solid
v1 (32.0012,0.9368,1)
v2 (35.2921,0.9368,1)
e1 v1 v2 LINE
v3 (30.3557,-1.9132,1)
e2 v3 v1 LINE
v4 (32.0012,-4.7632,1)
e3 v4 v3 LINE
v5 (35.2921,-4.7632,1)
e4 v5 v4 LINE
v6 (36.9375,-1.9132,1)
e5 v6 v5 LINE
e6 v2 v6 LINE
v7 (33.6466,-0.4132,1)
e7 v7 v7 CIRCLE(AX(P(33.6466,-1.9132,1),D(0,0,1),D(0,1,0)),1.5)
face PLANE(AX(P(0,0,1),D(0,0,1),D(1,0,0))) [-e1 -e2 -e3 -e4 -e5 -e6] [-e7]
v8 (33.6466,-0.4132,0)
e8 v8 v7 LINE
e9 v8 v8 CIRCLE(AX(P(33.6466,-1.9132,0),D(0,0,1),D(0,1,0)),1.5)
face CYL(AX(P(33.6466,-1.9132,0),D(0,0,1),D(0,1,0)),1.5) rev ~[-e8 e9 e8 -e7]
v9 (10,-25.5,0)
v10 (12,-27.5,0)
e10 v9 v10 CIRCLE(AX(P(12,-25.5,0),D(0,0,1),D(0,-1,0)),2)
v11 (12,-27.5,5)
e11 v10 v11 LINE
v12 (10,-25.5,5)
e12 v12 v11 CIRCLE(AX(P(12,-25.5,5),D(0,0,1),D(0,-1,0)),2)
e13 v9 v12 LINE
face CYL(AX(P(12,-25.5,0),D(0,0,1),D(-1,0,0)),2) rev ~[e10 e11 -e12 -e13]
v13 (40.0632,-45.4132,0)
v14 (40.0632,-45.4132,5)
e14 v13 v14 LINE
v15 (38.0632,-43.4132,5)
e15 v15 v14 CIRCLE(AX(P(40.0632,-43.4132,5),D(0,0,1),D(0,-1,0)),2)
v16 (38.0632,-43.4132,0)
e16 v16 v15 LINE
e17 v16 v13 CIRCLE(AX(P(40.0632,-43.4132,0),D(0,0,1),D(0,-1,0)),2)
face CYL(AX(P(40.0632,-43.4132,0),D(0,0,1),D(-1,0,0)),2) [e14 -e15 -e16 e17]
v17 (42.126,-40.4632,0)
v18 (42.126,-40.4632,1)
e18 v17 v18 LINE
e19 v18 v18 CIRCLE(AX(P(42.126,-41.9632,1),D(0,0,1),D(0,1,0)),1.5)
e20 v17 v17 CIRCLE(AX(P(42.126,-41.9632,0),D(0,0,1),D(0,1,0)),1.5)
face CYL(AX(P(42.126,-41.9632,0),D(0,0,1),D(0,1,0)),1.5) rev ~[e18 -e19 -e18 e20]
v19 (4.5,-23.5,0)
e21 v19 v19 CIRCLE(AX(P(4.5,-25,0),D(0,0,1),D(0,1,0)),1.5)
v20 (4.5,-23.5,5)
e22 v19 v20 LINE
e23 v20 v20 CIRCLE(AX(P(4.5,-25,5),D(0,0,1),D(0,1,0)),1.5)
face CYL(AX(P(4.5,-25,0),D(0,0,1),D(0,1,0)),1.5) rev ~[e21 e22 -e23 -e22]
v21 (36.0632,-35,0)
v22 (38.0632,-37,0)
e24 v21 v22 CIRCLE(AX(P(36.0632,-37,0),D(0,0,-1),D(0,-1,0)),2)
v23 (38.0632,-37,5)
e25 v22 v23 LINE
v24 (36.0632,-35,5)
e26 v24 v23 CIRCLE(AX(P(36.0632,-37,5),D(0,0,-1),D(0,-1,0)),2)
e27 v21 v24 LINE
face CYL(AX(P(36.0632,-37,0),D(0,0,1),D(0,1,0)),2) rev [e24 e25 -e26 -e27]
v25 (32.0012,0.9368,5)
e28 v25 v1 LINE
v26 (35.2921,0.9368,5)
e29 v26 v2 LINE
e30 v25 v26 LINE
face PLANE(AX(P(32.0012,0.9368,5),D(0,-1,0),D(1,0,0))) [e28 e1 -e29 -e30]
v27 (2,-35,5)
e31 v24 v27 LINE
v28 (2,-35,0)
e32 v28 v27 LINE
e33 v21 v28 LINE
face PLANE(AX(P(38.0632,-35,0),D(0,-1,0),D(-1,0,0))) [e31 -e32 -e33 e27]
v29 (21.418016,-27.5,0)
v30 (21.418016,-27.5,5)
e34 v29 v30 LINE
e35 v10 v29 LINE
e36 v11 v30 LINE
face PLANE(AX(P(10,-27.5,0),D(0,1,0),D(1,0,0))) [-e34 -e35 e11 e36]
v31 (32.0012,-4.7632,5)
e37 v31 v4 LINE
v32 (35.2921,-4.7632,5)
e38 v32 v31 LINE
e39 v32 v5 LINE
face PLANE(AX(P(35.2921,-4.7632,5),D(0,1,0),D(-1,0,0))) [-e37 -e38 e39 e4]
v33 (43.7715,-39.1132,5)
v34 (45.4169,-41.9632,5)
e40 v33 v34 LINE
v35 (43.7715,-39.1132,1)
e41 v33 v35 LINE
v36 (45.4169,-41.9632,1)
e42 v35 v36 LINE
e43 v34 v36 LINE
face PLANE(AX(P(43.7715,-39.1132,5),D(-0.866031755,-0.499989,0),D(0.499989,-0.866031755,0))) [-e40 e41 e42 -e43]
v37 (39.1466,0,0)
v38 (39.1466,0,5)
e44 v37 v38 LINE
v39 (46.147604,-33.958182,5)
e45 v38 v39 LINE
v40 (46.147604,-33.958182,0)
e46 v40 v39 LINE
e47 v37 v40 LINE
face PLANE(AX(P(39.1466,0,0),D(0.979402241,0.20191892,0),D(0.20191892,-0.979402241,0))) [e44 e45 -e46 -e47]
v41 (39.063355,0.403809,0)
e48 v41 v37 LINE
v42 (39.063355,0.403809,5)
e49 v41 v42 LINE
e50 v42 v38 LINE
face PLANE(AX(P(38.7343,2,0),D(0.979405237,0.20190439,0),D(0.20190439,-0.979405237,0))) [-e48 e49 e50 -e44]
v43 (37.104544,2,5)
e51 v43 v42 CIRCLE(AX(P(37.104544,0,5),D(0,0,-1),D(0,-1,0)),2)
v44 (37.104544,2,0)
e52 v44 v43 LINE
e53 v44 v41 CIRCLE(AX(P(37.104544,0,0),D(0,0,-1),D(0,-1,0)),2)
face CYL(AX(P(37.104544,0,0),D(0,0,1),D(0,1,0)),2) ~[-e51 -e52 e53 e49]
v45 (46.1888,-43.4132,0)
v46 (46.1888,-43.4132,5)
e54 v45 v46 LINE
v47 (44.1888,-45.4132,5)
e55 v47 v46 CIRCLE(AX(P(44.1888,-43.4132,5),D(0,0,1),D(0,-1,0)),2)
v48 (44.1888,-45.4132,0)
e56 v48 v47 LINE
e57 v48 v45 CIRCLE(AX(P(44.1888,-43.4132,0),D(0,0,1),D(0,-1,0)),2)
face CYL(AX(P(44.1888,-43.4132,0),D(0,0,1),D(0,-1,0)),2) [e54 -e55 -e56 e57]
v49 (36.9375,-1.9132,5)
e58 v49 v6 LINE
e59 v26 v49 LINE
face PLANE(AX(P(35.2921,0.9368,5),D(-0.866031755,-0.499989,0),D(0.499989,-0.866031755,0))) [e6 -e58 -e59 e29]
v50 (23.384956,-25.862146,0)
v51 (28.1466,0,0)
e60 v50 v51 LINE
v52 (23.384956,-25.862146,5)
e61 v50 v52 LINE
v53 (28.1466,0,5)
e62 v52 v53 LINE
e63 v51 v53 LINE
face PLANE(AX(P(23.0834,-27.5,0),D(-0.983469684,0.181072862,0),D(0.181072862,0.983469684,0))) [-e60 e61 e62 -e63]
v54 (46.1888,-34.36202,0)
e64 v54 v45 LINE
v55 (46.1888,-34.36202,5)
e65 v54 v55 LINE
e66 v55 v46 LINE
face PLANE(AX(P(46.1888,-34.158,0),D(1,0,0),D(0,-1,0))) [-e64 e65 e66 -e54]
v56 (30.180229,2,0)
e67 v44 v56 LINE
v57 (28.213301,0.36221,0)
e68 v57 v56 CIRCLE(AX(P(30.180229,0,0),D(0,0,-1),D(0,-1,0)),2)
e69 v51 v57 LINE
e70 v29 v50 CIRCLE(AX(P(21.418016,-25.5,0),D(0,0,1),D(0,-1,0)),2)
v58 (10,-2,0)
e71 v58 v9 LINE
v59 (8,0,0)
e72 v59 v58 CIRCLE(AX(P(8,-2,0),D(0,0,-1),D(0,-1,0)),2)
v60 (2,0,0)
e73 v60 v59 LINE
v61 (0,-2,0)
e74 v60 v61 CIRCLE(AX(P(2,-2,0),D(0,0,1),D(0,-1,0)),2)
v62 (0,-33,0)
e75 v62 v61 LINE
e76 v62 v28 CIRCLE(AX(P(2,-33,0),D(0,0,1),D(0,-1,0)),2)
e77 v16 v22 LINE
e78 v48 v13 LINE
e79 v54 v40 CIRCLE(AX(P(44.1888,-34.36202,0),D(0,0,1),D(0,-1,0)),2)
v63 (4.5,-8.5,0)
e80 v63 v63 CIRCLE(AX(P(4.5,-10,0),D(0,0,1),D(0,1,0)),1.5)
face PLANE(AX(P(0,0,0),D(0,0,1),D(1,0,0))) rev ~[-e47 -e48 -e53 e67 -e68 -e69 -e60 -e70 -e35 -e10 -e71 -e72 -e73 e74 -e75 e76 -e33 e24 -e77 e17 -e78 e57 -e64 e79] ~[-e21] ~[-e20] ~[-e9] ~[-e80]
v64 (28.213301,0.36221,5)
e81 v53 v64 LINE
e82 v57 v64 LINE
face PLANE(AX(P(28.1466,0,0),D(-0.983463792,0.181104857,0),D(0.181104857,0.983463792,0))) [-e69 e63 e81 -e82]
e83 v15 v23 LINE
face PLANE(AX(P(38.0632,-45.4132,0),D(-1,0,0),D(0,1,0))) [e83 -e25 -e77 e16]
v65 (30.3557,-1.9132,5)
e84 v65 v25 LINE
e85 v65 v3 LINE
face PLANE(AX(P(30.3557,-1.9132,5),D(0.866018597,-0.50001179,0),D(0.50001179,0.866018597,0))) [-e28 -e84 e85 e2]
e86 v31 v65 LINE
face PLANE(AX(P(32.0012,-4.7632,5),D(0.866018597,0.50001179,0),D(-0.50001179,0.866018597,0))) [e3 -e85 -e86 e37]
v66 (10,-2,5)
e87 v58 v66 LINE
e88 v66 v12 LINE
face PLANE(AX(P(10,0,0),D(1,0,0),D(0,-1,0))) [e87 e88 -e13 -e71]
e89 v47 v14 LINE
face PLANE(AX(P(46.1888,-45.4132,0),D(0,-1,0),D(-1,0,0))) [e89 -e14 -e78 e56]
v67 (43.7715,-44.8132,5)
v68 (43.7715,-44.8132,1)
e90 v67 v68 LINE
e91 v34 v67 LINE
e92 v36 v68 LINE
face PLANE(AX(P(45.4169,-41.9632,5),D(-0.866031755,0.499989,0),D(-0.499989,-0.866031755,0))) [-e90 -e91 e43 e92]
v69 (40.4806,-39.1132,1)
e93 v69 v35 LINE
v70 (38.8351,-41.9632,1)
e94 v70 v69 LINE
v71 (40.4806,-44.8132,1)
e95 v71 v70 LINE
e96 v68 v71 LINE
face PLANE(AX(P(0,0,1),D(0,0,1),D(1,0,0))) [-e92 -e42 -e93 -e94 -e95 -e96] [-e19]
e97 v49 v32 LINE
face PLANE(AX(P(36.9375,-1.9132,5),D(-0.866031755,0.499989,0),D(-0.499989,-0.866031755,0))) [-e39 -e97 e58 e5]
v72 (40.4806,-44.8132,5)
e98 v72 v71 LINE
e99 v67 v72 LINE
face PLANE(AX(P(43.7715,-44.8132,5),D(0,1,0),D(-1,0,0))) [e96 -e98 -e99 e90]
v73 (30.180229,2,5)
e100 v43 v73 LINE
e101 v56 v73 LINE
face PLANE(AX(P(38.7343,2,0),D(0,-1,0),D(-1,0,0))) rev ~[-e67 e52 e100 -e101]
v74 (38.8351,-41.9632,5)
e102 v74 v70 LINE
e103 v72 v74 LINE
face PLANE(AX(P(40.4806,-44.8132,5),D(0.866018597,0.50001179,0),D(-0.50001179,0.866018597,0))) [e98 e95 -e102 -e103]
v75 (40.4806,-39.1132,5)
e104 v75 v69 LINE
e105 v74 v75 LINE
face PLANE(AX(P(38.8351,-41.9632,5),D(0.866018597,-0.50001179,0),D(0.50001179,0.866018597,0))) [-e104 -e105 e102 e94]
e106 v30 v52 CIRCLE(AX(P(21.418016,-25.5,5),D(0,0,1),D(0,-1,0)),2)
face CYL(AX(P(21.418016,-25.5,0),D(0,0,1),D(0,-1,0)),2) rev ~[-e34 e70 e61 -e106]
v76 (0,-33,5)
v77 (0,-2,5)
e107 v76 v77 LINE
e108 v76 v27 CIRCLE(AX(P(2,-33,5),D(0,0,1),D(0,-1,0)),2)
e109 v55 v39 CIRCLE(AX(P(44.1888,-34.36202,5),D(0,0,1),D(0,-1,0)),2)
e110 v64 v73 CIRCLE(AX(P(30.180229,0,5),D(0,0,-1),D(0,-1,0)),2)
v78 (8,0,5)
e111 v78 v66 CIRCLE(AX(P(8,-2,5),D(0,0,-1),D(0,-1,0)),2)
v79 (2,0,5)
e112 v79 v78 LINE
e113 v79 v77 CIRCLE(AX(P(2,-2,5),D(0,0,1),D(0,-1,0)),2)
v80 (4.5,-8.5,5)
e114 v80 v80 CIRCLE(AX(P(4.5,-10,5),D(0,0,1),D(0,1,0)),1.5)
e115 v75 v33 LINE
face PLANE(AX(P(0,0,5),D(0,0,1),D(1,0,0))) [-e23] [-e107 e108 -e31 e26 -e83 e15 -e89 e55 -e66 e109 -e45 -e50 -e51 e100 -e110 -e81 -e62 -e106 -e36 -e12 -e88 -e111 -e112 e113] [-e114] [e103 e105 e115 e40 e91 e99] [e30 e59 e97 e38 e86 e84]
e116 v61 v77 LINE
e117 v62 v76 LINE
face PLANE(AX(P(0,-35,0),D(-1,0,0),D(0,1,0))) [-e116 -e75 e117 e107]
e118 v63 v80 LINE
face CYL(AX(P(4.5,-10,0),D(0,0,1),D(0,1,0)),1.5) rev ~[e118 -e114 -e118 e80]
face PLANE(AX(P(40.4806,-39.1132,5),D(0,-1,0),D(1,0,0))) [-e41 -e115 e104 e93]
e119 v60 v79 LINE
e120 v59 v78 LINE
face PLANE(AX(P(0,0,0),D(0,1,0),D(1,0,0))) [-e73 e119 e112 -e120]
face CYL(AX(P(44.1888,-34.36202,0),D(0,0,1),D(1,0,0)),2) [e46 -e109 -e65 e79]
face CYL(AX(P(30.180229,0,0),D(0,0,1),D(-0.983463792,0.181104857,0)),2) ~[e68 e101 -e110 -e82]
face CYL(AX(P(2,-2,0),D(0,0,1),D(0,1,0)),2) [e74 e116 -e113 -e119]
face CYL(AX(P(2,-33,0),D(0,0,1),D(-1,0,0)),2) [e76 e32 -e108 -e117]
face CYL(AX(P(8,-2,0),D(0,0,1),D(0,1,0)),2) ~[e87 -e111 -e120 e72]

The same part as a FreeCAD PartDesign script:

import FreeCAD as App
import Part
import Sketcher
from FreeCAD import Vector
Q = App.Units.Quantity


def edges_at(feature, points):
    """Names of the edges that pass closest to the given points."""
    edges = feature.Shape.Edges
    near = lambda p: min(range(len(edges)), key=lambda i: edges[i].distToShape(Part.Vertex(*p))[0])
    return sorted({f"Edge{near(p) + 1}" for p in points})


def add_polygon(sketch, points):
    """Adds a closed chain of lines whose ends are joined by coincident constraints."""
    first, n = sketch.GeometryCount, len(points)
    for a, b in zip(points, points[1:] + points[:1]):
        sketch.addGeometry(Part.LineSegment(App.Vector(*a, 0), App.Vector(*b, 0)), False)
    for i in range(n):
        sketch.addConstraint(Sketcher.Constraint("Coincident", first + i, 2, first + (i + 1) % n, 1))

doc = App.newDocument("Part")
body = doc.addObject("PartDesign::Body", "Body")

# Sketch on XY plane
sketch1 = body.newObject("Sketcher::SketchObject", "Sketch")
sketch1.AttachmentSupport = (doc.getObject("XY_Plane"), [""])
sketch1.MapMode = "FlatFace"
add_polygon(sketch1, [(10, 0), (0, 0), (0, -35), (38.0632, -35), (38.0632, -45.4132), (46.1888, -45.4132), (46.1888, -34.158), (39.1466, 0), (38.7343, 2), (28.5149, 2), (28.1466, 0), (23.0834, -27.5), (10, -27.5)])  # lines 0-12
sketch1.addConstraint([
    Sketcher.Constraint("Horizontal", 0),
    Sketcher.Constraint("Vertical", 1),
    Sketcher.Constraint("Horizontal", 2),
    Sketcher.Constraint("Vertical", 3),
    Sketcher.Constraint("Horizontal", 4),
    Sketcher.Constraint("Vertical", 5),
    Sketcher.Constraint("Horizontal", 8),
    Sketcher.Constraint("Horizontal", 11),
    Sketcher.Constraint("Vertical", 12),
    Sketcher.Constraint("Coincident", 0, 2, -1, 1),
    Sketcher.Constraint("PointOnObject", 6, 2, -1),
    Sketcher.Constraint("PointOnObject", 9, 2, -1),
    Sketcher.Constraint("DistanceX", 0, 2, 0, 1, Q("10 mm")),
    Sketcher.Constraint("DistanceY", 1, 2, 1, 1, Q("35 mm")),
    Sketcher.Constraint("DistanceY", -1, 1, 7, 2, Q("2 mm")),
    Sketcher.Constraint("DistanceY", 2, 2, 10, 2, Q("7.5 mm")),
    Sketcher.Constraint("DistanceX", 2, 1, 2, 2, Q("38.0632 mm")),
    Sketcher.Constraint("DistanceX", 4, 1, 4, 2, Q("8.1256 mm")),
    Sketcher.Constraint("DistanceY", 3, 2, 3, 1, Q("10.4132 mm")),
    Sketcher.Constraint("DistanceX", 9, 2, 6, 2, Q("11 mm")),
    Sketcher.Constraint("Distance", 7, Q("2.042 mm")),
    Sketcher.Constraint("DistanceX", 8, 2, 8, 1, Q("10.2194 mm")),
    Sketcher.Constraint("DistanceX", 11, 2, 11, 1, Q("13.0834 mm")),
    Sketcher.Constraint("DistanceY", 5, 1, 5, 2, Q("11.2552 mm")),
    Sketcher.Constraint("DistanceX", -1, 1, 8, 2, Q("28.515 mm")),
])
pad1 = body.newObject("PartDesign::Pad", "Pad")
pad1.Profile = sketch1
pad1.Length = 5

# Sketch on XY plane
sketch2 = body.newObject("Sketcher::SketchObject", "Sketch001")
sketch2.AttachmentSupport = (doc.getObject("XY_Plane"), [""])
sketch2.MapMode = "FlatFace"
sketch2.addGeometry([
    Part.Circle(Vector(4.5, -10, 0), Vector(0, 0, 1), 1.5),
    Part.Circle(Vector(4.5, -25, 0), Vector(0, 0, 1), 1.5),
    Part.Circle(Vector(42.1, -42, 0), Vector(0, 0, 1), 1.5),
    Part.Circle(Vector(33.6, -1.9, 0), Vector(0, 0, 1), 1.5),
], False)
sketch2.addConstraint([
    Sketcher.Constraint("Equal", 0, 1),
    Sketcher.Constraint("Equal", 1, 2),
    Sketcher.Constraint("Equal", 2, 3),
    Sketcher.Constraint("Vertical", 0, 3, 1, 3),
    Sketcher.Constraint("Diameter", 0, Q("3 mm")),
    Sketcher.Constraint("DistanceY", 0, 3, -1, 1, Q("10 mm")),
    Sketcher.Constraint("DistanceY", 1, 3, -1, 1, Q("25 mm")),
    Sketcher.Constraint("DistanceX", -1, 1, 0, 3, Q("4.5 mm")),
    Sketcher.Constraint("DistanceY", 2, 3, 3, 3, Q("40.05 mm")),
    Sketcher.Constraint("DistanceX", -1, 1, 2, 3, Q("42.126 mm")),
    Sketcher.Constraint("DistanceY", 2, 3, -1, 1, Q("41.9632 mm")),
    Sketcher.Constraint("DistanceX", -1, 1, 3, 3, Q("33.6466 mm")),
])
doc.recompute()
hole = body.newObject("PartDesign::Hole", "Hole")
hole.Profile = sketch2
hole.ThreadType = "None"
hole.Diameter = 3
hole.DepthType = "Dimension"
hole.Depth = 20
hole.DrillPoint = "Flat"
hole.Reversed = True

# Sketch on XY plane
sketch3 = body.newObject("Sketcher::SketchObject", "Sketch002")
sketch3.AttachmentSupport = (doc.getObject("XY_Plane"), [""])
sketch3.MapMode = "FlatFace"
sketch3.AttachmentOffset = App.Placement(Vector(0, 0, 5), App.Rotation())
add_polygon(sketch3, [(36.9, -1.9), (35.3, 0.9), (32, 0.9), (30.4, -1.9), (32, -4.8), (35.3, -4.8)])  # lines 0-5
sketch3.addGeometry(Part.Circle(Vector(33.6, -1.9, 0), Vector(0, 0, 1), 1.5), False)  # 6
add_polygon(sketch3, [(45.4, -42), (43.8, -39.1), (40.5, -39.1), (38.8, -42), (40.5, -44.8), (43.8, -44.8)])  # lines 7-12
sketch3.addGeometry(Part.Circle(Vector(42.1, -42, 0), Vector(0, 0, 1), 1.5), False)  # 13
sketch3.addConstraint([
    Sketcher.Constraint("Horizontal", 1),
    Sketcher.Constraint("Horizontal", 4),
    Sketcher.Constraint("Horizontal", 8),
    Sketcher.Constraint("Horizontal", 11),
    Sketcher.Constraint("Equal", 6, 13),
    Sketcher.Constraint("Parallel", 0, 3),
    Sketcher.Constraint("Parallel", 2, 5),
    Sketcher.Constraint("Parallel", 3, 7),
    Sketcher.Constraint("Parallel", 5, 9),
    Sketcher.Constraint("Parallel", 7, 10),
    Sketcher.Constraint("Parallel", 9, 12),
    Sketcher.Constraint("Horizontal", 6, 3, 2, 2),
    Sketcher.Constraint("Horizontal", 2, 2, 5, 2),
    Sketcher.Constraint("Horizontal", 13, 3, 9, 2),
    Sketcher.Constraint("Horizontal", 9, 2, 12, 2),
    Sketcher.Constraint("Vertical", 1, 2, 3, 2),
    Sketcher.Constraint("Vertical", 0, 2, 4, 2),
    Sketcher.Constraint("Vertical", 8, 2, 10, 2),
    Sketcher.Constraint("Equal", 4, 8),
    Sketcher.Constraint("Equal", 5, 7),
    Sketcher.Constraint("Diameter", 6, Q("3 mm")),
    Sketcher.Constraint("Angle", 0, Q("119.9993 deg")),
    Sketcher.Constraint("DistanceY", 13, 3, 0, 2, Q("42.9 mm")),
    Sketcher.Constraint("DistanceY", 3, 2, 1, 2, Q("5.7 mm")),
    Sketcher.Constraint("DistanceX", 1, 2, 1, 1, Q("3.291 mm")),
    Sketcher.Constraint("DistanceX", -1, 1, 13, 3, Q("42.126 mm")),
    Sketcher.Constraint("DistanceX", -1, 1, 0, 2, Q("35.292 mm")),
    Sketcher.Constraint("DistanceX", -1, 1, 9, 2, Q("38.835 mm")),
    Sketcher.Constraint("DistanceX", 2, 2, 6, 3, Q("3.291 mm")),
    Sketcher.Constraint("DistanceY", 6, 3, -1, 1, Q("1.9132 mm")),
])
pocket1 = body.newObject("PartDesign::Pocket", "Pocket")
pocket1.Profile = sketch3
pocket1.Length = 4
doc.recompute()

fillet = body.newObject("PartDesign::Fillet", "Fillet")
fillet.Base = (pocket1, edges_at(pocket1, [
    (0, 0, 2.5),
    (10, 0, 2.5),
    (10, -27.5, 2.5),
    (23.083, -27.5, 2.5),
    (0, -35, 2.5),
    (38.063, -35, 2.5),
    (38.063, -45.413, 2.5),
    (46.189, -45.413, 2.5),
    (46.189, -34.158, 2.5),
    (28.515, 2, 2.5),
    (38.734, 2, 2.5),
]))
fillet.Radius = 2

doc.recompute()
